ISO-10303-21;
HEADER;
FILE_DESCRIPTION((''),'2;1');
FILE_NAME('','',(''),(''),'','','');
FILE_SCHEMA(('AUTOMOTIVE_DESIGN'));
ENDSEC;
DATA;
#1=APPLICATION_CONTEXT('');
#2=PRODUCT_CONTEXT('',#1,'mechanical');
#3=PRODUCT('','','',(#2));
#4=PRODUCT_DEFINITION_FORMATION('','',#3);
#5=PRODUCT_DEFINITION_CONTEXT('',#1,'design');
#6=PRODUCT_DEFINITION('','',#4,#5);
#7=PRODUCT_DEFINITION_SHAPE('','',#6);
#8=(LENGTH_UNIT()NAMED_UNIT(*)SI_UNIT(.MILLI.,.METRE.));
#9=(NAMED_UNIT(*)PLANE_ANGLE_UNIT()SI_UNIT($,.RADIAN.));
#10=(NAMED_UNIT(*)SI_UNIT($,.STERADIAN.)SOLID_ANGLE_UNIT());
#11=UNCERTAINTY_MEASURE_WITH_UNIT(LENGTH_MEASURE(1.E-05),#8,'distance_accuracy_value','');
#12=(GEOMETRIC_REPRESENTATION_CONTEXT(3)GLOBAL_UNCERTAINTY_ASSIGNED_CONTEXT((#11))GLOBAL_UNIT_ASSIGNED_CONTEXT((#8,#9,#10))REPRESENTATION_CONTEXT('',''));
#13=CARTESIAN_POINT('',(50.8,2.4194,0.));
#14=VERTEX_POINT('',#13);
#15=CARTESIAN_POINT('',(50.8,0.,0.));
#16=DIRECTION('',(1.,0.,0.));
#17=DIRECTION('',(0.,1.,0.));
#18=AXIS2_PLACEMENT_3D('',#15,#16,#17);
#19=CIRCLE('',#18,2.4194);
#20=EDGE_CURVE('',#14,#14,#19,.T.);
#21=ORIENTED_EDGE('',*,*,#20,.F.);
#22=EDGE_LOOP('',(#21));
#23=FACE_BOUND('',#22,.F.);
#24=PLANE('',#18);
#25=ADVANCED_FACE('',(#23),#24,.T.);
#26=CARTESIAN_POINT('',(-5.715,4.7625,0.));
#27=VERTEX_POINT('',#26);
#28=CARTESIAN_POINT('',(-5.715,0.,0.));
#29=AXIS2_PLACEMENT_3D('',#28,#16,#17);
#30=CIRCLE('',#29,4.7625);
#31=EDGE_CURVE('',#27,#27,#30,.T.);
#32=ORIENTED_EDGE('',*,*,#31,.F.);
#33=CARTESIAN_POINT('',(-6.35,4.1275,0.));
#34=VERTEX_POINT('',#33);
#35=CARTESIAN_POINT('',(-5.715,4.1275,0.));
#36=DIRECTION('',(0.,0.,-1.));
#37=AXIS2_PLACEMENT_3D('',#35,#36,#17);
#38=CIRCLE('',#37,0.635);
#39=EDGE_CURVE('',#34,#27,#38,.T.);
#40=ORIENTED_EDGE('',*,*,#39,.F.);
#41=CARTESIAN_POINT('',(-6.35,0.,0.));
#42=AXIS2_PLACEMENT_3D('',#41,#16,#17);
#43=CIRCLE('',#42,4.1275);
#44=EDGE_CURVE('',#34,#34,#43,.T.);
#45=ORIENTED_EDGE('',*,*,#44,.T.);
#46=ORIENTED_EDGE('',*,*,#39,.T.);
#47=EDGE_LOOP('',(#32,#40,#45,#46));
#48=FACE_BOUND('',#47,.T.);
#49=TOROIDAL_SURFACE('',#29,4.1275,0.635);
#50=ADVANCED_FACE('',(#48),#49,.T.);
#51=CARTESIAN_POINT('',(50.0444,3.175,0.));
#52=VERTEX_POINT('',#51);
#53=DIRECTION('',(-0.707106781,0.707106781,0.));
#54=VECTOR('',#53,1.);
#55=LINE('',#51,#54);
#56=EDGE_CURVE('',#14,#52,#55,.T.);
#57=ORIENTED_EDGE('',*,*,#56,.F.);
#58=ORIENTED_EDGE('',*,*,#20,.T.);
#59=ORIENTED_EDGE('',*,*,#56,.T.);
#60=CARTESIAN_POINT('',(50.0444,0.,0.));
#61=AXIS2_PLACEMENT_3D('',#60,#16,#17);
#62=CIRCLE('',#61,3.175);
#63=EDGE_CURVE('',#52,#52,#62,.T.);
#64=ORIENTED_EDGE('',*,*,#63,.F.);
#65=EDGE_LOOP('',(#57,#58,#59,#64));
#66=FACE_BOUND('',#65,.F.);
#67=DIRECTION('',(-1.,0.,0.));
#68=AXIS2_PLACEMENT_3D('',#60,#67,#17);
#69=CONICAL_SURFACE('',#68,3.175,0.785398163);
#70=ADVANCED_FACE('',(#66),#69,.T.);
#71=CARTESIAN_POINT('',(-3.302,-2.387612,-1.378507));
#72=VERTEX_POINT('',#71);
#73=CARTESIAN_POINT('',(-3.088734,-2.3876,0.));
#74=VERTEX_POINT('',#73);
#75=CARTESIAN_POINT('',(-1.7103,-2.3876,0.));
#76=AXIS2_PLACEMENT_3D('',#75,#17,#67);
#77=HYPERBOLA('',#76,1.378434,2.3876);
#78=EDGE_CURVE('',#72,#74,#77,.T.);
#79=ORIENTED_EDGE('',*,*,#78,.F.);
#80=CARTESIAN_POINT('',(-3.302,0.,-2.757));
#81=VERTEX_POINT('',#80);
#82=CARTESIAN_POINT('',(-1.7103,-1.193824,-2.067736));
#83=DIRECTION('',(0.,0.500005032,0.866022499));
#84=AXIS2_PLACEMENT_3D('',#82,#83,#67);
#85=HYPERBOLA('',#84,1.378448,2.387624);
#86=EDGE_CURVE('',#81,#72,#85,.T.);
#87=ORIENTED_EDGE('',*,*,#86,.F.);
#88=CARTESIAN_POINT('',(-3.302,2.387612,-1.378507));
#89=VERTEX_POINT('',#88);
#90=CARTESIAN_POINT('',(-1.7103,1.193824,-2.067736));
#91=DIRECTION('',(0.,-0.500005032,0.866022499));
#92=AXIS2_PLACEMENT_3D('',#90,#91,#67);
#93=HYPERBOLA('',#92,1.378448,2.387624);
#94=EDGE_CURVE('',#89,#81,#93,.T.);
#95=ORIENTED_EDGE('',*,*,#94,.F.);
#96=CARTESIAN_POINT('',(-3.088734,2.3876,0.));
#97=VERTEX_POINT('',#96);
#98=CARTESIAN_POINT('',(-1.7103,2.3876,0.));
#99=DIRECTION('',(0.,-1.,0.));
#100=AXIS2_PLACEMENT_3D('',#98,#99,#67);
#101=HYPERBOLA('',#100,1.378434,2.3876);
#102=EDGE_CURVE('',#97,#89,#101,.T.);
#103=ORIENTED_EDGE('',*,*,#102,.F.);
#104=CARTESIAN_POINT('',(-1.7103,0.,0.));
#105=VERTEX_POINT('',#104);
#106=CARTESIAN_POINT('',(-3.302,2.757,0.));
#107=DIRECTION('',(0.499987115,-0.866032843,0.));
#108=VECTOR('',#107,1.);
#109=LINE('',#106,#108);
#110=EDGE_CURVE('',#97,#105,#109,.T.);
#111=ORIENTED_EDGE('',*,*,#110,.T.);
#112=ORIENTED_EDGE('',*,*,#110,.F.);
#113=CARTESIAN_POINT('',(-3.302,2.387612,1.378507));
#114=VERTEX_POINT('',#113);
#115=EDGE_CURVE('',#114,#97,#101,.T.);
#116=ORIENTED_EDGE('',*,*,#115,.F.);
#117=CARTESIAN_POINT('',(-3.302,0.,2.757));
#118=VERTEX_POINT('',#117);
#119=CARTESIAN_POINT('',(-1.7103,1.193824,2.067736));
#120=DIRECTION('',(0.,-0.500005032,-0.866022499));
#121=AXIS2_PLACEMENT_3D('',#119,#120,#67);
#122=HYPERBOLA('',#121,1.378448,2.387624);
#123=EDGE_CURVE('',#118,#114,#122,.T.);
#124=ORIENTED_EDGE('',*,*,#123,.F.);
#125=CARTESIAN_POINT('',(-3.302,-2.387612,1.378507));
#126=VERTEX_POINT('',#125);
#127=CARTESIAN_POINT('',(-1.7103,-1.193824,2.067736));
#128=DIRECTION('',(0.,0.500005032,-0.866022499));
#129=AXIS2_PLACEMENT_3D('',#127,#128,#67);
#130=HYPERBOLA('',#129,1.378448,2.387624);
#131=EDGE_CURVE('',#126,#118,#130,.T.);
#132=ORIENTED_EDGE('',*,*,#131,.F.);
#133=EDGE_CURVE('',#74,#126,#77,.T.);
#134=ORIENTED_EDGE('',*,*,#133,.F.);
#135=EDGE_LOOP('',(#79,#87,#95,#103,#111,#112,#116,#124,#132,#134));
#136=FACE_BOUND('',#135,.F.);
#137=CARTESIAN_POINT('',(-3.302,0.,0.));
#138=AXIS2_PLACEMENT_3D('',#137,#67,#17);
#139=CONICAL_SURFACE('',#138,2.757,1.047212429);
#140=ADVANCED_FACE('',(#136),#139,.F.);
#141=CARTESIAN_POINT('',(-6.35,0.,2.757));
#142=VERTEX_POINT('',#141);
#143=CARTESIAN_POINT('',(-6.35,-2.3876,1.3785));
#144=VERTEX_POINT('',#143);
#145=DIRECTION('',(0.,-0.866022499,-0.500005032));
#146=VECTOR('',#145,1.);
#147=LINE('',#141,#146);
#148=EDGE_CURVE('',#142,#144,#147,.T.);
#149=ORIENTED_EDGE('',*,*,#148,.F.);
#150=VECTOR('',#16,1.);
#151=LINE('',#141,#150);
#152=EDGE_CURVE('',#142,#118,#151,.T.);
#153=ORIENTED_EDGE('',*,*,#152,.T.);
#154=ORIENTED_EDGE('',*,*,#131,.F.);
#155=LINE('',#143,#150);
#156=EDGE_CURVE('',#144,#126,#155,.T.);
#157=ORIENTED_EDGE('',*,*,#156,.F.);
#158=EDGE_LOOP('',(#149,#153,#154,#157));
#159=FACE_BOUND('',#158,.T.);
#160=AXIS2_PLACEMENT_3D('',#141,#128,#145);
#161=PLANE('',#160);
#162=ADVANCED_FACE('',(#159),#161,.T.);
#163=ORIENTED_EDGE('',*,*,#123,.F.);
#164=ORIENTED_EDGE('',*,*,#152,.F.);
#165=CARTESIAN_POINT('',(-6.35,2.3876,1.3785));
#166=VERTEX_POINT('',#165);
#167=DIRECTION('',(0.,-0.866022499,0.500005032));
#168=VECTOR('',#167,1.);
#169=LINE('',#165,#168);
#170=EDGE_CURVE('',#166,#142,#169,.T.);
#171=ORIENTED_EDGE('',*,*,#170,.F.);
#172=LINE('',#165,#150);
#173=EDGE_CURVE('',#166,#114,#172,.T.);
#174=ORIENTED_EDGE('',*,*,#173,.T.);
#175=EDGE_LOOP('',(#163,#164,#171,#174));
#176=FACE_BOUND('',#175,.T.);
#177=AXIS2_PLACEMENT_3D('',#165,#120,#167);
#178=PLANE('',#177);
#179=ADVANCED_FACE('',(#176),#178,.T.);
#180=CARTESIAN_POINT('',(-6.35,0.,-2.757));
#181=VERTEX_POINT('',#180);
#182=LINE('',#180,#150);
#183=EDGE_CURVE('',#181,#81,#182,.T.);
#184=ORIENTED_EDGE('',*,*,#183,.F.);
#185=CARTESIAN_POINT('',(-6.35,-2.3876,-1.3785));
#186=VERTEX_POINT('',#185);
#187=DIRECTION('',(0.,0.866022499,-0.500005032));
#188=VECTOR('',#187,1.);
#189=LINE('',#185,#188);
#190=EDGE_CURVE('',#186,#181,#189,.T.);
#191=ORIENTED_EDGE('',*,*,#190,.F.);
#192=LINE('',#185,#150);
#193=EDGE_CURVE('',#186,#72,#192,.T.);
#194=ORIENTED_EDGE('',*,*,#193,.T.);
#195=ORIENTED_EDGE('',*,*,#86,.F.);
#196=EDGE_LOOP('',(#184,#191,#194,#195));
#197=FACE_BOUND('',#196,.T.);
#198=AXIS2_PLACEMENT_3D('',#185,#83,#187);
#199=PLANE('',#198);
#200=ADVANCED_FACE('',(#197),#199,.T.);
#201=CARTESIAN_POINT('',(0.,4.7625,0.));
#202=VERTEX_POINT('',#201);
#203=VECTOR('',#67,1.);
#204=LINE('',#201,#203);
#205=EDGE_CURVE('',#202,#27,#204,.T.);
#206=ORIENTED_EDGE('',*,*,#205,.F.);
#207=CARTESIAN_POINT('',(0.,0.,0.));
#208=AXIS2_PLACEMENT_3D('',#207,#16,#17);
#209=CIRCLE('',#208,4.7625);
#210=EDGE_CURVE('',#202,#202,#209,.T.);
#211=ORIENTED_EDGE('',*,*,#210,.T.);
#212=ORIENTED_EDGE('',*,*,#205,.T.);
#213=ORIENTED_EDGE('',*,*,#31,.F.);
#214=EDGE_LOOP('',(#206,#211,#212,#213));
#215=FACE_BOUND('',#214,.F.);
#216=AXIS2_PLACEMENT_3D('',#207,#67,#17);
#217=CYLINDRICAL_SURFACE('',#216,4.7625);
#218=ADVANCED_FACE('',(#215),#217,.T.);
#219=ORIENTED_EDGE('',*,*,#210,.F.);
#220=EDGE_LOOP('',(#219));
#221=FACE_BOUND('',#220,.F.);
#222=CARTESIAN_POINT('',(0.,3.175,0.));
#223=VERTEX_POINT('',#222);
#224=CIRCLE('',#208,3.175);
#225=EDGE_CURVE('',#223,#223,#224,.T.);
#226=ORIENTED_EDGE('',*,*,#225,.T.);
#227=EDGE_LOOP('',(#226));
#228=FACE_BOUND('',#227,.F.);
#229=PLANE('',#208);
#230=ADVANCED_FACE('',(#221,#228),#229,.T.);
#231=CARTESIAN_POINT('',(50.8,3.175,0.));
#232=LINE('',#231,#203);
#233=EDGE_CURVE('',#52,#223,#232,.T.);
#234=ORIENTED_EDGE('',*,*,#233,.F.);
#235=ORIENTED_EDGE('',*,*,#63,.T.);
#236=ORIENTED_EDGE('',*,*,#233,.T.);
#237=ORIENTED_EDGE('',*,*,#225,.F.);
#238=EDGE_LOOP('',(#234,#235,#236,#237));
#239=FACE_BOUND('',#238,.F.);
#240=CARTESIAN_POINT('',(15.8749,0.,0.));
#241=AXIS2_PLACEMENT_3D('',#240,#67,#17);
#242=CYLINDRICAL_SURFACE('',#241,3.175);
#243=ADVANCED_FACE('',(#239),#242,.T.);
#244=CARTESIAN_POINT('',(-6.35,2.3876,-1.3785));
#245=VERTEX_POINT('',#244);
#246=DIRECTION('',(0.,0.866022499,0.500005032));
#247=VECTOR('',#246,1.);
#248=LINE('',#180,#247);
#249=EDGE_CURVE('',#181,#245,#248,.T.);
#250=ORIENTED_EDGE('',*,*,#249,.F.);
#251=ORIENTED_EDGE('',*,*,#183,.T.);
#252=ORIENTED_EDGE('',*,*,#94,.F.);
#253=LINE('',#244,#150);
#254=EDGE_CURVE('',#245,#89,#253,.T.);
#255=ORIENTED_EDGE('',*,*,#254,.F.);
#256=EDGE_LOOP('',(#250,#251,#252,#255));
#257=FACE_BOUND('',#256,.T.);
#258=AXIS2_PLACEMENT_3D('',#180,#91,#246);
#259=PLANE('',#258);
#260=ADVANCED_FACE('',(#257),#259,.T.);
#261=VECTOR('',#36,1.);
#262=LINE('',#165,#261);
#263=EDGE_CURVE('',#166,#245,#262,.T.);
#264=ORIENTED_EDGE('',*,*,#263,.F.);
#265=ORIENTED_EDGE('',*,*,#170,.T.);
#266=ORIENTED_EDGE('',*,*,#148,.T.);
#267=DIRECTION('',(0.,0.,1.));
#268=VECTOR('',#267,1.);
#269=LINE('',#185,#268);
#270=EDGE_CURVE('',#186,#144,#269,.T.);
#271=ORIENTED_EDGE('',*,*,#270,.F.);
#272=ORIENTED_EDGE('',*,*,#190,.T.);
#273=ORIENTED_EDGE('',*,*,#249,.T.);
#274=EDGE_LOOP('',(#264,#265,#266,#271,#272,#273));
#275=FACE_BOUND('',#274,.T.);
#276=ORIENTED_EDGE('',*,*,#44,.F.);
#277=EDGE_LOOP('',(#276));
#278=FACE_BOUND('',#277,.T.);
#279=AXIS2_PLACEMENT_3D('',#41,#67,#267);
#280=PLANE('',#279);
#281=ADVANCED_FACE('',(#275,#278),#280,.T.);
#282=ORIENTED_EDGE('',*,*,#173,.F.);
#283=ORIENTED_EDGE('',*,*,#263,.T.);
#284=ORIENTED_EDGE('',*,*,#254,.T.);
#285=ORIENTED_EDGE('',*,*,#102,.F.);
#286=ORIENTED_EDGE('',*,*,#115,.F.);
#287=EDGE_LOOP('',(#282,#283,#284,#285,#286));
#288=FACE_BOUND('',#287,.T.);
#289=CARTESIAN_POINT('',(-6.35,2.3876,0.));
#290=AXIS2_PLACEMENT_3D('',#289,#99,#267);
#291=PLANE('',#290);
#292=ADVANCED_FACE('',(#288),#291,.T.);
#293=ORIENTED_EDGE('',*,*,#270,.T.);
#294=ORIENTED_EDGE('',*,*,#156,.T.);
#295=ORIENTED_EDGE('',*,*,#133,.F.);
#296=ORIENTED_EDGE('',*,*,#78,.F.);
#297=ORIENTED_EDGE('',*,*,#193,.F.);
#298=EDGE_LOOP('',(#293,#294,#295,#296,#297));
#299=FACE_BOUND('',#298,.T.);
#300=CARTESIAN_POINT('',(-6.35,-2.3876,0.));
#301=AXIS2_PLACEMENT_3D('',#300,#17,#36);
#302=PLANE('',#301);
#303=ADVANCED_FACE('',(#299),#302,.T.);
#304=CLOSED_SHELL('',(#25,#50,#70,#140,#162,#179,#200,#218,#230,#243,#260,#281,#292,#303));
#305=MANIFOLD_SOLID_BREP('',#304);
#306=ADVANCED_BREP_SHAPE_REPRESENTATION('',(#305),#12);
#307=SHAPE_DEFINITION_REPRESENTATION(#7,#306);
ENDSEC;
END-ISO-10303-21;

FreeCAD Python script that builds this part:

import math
import FreeCAD as App
import Part
import Sketcher

V = App.Vector
Q = App.Units.Quantity


def edges_at(feature, points):
    """Names of the edges that pass closest to the given points."""
    edges = feature.Shape.Edges
    near = lambda p: min(range(len(edges)), key=lambda i: edges[i].distToShape(Part.Vertex(*p))[0])
    return sorted({f"Edge{near(p) + 1}" for p in points})

doc = App.newDocument("Part")
params = doc.addObject("Spreadsheet::Sheet", "Params")
for row, (alias, value) in enumerate([
    ("sketch1_width", "2 in"),
    ("sketch1_width2", "0.25 in"),
    ("sketch1_width3", "0.12 in"),
    ("sketch1_height", "0.125 in"),
    ("sketch1_height2", "0.0625 in"),
    ("revolution_angle", "360 deg"),
    ("fillet_radius", "0.025 in"),
    ("chamfer_size", "0.7556 mm"),
    ("chamfer_size2", "0.7556 mm"),
], start=1):
    params.set(f"A{row}", alias)
    params.set(f"B{row}", "=" + value)
    params.setAlias(f"B{row}", alias)

body = doc.addObject("PartDesign::Body", "Body")

# Sketch on XY plane
sketch1 = body.newObject("Sketcher::SketchObject", "Sketch")
sketch1.AttachmentSupport = (doc.getObject("XY_Plane"), [""])
sketch1.MapMode = "FlatFace"
sketch1.addGeometry([
    Part.LineSegment(V(-3.3, 2.8, 0), V(-1.7, 0, 0)),  # 0
    Part.LineSegment(V(-1.7, 0, 0), V(50.8, 0, 0)),  # 1
    Part.LineSegment(V(50.8, 0, 0), V(50.8, 3.2, 0)),  # 2
    Part.LineSegment(V(50.8, 3.2, 0), V(0, 3.2, 0)),  # 3
    Part.LineSegment(V(0, 3.2, 0), V(0, 4.8, 0)),  # 4
    Part.LineSegment(V(0, 4.8, 0), V(-6.3, 4.8, 0)),  # 5
    Part.LineSegment(V(-6.3, 4.8, 0), V(-6.3, 2.8, 0)),  # 6
    Part.LineSegment(V(-6.3, 2.8, 0), V(-3.3, 2.8, 0)),  # 7
], False)
sketch1.addConstraint([
    Sketcher.Constraint("Coincident", 0, 2, 1, 1),
    Sketcher.Constraint("Coincident", 1, 2, 2, 1),
    Sketcher.Constraint("Coincident", 2, 2, 3, 1),
    Sketcher.Constraint("Coincident", 3, 2, 4, 1),
    Sketcher.Constraint("Coincident", 4, 2, 5, 1),
    Sketcher.Constraint("Coincident", 5, 2, 6, 1),
    Sketcher.Constraint("Coincident", 6, 2, 7, 1),
    Sketcher.Constraint("Coincident", 7, 2, 0, 1),
    Sketcher.Constraint("Horizontal", 1),
    Sketcher.Constraint("Vertical", 2),
    Sketcher.Constraint("Horizontal", 3),
    Sketcher.Constraint("Vertical", 4),
    Sketcher.Constraint("Horizontal", 5),
    Sketcher.Constraint("Vertical", 6),
    Sketcher.Constraint("Horizontal", 7),
    Sketcher.Constraint("PointOnObject", 0, 2, -1),
    Sketcher.Constraint("PointOnObject", 3, 2, -2),
    Sketcher.Constraint("DistanceX", 3, 2, 3, 1, Q("2 in")),
    Sketcher.Constraint("DistanceX", 5, 2, 5, 1, Q("0.25 in")),
    Sketcher.Constraint("DistanceX", 7, 1, 7, 2, Q("0.12 in")),
    Sketcher.Constraint("DistanceY", 2, 1, 2, 2, Q("0.125 in")),
    Sketcher.Constraint("Angle", 0, Q("-60.0009 deg")),
    Sketcher.Constraint("DistanceY", 4, 1, 4, 2, Q("0.0625 in")),
    Sketcher.Constraint("DistanceX", 1, 1, 1, 2, 52.5103),
])
sketch1.setExpression("Constraints[17]", "Params.sketch1_width")
sketch1.setExpression("Constraints[18]", "Params.sketch1_width2")
sketch1.setExpression("Constraints[19]", "Params.sketch1_width3")
sketch1.setExpression("Constraints[20]", "Params.sketch1_height")
sketch1.setExpression("Constraints[22]", "Params.sketch1_height2")
revolution = body.newObject("PartDesign::Revolution", "Revolution")
revolution.Profile = sketch1
revolution.ReferenceAxis = (sketch1, ["H_Axis"])
revolution.setExpression("Angle", "Params.revolution_angle")

# Sketch on YZ plane
sketch2 = body.newObject("Sketcher::SketchObject", "Sketch001")
sketch2.AttachmentSupport = (doc.getObject("YZ_Plane"), [""])
sketch2.MapMode = "FlatFace"
sketch2.AttachmentOffset = App.Placement(V(0, 0, -0.25 * 25.4), App.Rotation())
sketch2.addGeometry([
    Part.LineSegment(V(2.4, 1.4, 0), V(0, 2.8, 0)),  # 0
    Part.ArcOfCircle(Part.Circle(V(0, 0, 0), V(0, 0, 1), 2.8), math.radians(30), math.radians(90)),  # 1
    Part.ArcOfCircle(Part.Circle(V(0, 0, 0), V(0, 0, 1), 2.8), math.radians(90), math.radians(150)),  # 2
    Part.LineSegment(V(0, 2.8, 0), V(-2.4, 1.4, 0)),  # 3
    Part.ArcOfCircle(Part.Circle(V(0, 0, 0), V(0, 0, 1), 2.8), math.radians(-30), math.radians(30)),  # 4
    Part.LineSegment(V(2.4, 1.4, 0), V(2.4, -1.4, 0)),  # 5
    Part.LineSegment(V(-2.4, 1.4, 0), V(-2.4, -1.4, 0)),  # 6
    Part.ArcOfCircle(Part.Circle(V(0, 0, 0), V(0, 0, 1), 2.8), math.radians(150), math.radians(210)),  # 7
    Part.LineSegment(V(-2.4, -1.4, 0), V(0, -2.8, 0)),  # 8
    Part.ArcOfCircle(Part.Circle(V(0, 0, 0), V(0, 0, 1), 2.8), math.radians(-150), math.radians(-90)),  # 9
    Part.ArcOfCircle(Part.Circle(V(0, 0, 0), V(0, 0, 1), 2.8), math.radians(-90), math.radians(-30)),  # 10
    Part.LineSegment(V(0, -2.8, 0), V(2.4, -1.4, 0)),  # 11
], False)
sketch2.addConstraint([
    Sketcher.Constraint("Coincident", 0, 1, 1, 1),
    Sketcher.Constraint("Coincident", 1, 2, 0, 2),
    Sketcher.Constraint("Coincident", 2, 1, 3, 1),
    Sketcher.Constraint("Coincident", 3, 2, 2, 2),
    Sketcher.Constraint("Coincident", 4, 1, 5, 2),
    Sketcher.Constraint("Coincident", 5, 1, 4, 2),
    Sketcher.Constraint("Coincident", 6, 1, 7, 1),
    Sketcher.Constraint("Coincident", 7, 2, 6, 2),
    Sketcher.Constraint("Coincident", 8, 1, 9, 1),
    Sketcher.Constraint("Coincident", 9, 2, 8, 2),
    Sketcher.Constraint("Coincident", 10, 1, 11, 1),
    Sketcher.Constraint("Coincident", 11, 2, 10, 2),
    Sketcher.Constraint("Vertical", 5),
    Sketcher.Constraint("Vertical", 6),
    Sketcher.Constraint("Coincident", 1, 3, -1, 1),
    Sketcher.Constraint("Coincident", 2, 3, -1, 1),
    Sketcher.Constraint("Coincident", 4, 3, -1, 1),
    Sketcher.Constraint("Coincident", 7, 3, -1, 1),
    Sketcher.Constraint("Coincident", 9, 3, -1, 1),
    Sketcher.Constraint("Coincident", 10, 3, -1, 1),
    Sketcher.Constraint("Coincident", 2, 1, 1, 2),
    Sketcher.Constraint("Coincident", 5, 1, 0, 1),
    Sketcher.Constraint("Coincident", 6, 1, 3, 2),
    Sketcher.Constraint("Coincident", 8, 1, 7, 2),
    Sketcher.Constraint("Coincident", 10, 1, 9, 2),
    Sketcher.Constraint("PointOnObject", 1, 2, -2),
    Sketcher.Constraint("PointOnObject", 9, 2, -2),
    Sketcher.Constraint("Parallel", 0, 8),
    Sketcher.Constraint("Parallel", 3, 11),
    Sketcher.Constraint("Angle", 0, Q("149.9997 deg")),
    Sketcher.Constraint("Radius", 1, 2.757),
])
pad1 = body.newObject("PartDesign::Pad", "Pad")
pad1.Profile = sketch2
pad1.Type = "UpToFirst"
doc.recompute()

fillet = body.newObject("PartDesign::Fillet", "Fillet")
fillet.Base = (pad1, edges_at(pad1, [(-6.35, -4.763, 0)]))
fillet.setExpression("Radius", "Params.fillet_radius")
doc.recompute()

chamfer = body.newObject("PartDesign::Chamfer", "Chamfer")
chamfer.Base = (fillet, edges_at(fillet, [(50.8, -3.175, 0)]))
chamfer.ChamferType = "Two distances"
chamfer.setExpression("Size", "Params.chamfer_size")
chamfer.setExpression("Size2", "Params.chamfer_size2")

doc.recompute()
